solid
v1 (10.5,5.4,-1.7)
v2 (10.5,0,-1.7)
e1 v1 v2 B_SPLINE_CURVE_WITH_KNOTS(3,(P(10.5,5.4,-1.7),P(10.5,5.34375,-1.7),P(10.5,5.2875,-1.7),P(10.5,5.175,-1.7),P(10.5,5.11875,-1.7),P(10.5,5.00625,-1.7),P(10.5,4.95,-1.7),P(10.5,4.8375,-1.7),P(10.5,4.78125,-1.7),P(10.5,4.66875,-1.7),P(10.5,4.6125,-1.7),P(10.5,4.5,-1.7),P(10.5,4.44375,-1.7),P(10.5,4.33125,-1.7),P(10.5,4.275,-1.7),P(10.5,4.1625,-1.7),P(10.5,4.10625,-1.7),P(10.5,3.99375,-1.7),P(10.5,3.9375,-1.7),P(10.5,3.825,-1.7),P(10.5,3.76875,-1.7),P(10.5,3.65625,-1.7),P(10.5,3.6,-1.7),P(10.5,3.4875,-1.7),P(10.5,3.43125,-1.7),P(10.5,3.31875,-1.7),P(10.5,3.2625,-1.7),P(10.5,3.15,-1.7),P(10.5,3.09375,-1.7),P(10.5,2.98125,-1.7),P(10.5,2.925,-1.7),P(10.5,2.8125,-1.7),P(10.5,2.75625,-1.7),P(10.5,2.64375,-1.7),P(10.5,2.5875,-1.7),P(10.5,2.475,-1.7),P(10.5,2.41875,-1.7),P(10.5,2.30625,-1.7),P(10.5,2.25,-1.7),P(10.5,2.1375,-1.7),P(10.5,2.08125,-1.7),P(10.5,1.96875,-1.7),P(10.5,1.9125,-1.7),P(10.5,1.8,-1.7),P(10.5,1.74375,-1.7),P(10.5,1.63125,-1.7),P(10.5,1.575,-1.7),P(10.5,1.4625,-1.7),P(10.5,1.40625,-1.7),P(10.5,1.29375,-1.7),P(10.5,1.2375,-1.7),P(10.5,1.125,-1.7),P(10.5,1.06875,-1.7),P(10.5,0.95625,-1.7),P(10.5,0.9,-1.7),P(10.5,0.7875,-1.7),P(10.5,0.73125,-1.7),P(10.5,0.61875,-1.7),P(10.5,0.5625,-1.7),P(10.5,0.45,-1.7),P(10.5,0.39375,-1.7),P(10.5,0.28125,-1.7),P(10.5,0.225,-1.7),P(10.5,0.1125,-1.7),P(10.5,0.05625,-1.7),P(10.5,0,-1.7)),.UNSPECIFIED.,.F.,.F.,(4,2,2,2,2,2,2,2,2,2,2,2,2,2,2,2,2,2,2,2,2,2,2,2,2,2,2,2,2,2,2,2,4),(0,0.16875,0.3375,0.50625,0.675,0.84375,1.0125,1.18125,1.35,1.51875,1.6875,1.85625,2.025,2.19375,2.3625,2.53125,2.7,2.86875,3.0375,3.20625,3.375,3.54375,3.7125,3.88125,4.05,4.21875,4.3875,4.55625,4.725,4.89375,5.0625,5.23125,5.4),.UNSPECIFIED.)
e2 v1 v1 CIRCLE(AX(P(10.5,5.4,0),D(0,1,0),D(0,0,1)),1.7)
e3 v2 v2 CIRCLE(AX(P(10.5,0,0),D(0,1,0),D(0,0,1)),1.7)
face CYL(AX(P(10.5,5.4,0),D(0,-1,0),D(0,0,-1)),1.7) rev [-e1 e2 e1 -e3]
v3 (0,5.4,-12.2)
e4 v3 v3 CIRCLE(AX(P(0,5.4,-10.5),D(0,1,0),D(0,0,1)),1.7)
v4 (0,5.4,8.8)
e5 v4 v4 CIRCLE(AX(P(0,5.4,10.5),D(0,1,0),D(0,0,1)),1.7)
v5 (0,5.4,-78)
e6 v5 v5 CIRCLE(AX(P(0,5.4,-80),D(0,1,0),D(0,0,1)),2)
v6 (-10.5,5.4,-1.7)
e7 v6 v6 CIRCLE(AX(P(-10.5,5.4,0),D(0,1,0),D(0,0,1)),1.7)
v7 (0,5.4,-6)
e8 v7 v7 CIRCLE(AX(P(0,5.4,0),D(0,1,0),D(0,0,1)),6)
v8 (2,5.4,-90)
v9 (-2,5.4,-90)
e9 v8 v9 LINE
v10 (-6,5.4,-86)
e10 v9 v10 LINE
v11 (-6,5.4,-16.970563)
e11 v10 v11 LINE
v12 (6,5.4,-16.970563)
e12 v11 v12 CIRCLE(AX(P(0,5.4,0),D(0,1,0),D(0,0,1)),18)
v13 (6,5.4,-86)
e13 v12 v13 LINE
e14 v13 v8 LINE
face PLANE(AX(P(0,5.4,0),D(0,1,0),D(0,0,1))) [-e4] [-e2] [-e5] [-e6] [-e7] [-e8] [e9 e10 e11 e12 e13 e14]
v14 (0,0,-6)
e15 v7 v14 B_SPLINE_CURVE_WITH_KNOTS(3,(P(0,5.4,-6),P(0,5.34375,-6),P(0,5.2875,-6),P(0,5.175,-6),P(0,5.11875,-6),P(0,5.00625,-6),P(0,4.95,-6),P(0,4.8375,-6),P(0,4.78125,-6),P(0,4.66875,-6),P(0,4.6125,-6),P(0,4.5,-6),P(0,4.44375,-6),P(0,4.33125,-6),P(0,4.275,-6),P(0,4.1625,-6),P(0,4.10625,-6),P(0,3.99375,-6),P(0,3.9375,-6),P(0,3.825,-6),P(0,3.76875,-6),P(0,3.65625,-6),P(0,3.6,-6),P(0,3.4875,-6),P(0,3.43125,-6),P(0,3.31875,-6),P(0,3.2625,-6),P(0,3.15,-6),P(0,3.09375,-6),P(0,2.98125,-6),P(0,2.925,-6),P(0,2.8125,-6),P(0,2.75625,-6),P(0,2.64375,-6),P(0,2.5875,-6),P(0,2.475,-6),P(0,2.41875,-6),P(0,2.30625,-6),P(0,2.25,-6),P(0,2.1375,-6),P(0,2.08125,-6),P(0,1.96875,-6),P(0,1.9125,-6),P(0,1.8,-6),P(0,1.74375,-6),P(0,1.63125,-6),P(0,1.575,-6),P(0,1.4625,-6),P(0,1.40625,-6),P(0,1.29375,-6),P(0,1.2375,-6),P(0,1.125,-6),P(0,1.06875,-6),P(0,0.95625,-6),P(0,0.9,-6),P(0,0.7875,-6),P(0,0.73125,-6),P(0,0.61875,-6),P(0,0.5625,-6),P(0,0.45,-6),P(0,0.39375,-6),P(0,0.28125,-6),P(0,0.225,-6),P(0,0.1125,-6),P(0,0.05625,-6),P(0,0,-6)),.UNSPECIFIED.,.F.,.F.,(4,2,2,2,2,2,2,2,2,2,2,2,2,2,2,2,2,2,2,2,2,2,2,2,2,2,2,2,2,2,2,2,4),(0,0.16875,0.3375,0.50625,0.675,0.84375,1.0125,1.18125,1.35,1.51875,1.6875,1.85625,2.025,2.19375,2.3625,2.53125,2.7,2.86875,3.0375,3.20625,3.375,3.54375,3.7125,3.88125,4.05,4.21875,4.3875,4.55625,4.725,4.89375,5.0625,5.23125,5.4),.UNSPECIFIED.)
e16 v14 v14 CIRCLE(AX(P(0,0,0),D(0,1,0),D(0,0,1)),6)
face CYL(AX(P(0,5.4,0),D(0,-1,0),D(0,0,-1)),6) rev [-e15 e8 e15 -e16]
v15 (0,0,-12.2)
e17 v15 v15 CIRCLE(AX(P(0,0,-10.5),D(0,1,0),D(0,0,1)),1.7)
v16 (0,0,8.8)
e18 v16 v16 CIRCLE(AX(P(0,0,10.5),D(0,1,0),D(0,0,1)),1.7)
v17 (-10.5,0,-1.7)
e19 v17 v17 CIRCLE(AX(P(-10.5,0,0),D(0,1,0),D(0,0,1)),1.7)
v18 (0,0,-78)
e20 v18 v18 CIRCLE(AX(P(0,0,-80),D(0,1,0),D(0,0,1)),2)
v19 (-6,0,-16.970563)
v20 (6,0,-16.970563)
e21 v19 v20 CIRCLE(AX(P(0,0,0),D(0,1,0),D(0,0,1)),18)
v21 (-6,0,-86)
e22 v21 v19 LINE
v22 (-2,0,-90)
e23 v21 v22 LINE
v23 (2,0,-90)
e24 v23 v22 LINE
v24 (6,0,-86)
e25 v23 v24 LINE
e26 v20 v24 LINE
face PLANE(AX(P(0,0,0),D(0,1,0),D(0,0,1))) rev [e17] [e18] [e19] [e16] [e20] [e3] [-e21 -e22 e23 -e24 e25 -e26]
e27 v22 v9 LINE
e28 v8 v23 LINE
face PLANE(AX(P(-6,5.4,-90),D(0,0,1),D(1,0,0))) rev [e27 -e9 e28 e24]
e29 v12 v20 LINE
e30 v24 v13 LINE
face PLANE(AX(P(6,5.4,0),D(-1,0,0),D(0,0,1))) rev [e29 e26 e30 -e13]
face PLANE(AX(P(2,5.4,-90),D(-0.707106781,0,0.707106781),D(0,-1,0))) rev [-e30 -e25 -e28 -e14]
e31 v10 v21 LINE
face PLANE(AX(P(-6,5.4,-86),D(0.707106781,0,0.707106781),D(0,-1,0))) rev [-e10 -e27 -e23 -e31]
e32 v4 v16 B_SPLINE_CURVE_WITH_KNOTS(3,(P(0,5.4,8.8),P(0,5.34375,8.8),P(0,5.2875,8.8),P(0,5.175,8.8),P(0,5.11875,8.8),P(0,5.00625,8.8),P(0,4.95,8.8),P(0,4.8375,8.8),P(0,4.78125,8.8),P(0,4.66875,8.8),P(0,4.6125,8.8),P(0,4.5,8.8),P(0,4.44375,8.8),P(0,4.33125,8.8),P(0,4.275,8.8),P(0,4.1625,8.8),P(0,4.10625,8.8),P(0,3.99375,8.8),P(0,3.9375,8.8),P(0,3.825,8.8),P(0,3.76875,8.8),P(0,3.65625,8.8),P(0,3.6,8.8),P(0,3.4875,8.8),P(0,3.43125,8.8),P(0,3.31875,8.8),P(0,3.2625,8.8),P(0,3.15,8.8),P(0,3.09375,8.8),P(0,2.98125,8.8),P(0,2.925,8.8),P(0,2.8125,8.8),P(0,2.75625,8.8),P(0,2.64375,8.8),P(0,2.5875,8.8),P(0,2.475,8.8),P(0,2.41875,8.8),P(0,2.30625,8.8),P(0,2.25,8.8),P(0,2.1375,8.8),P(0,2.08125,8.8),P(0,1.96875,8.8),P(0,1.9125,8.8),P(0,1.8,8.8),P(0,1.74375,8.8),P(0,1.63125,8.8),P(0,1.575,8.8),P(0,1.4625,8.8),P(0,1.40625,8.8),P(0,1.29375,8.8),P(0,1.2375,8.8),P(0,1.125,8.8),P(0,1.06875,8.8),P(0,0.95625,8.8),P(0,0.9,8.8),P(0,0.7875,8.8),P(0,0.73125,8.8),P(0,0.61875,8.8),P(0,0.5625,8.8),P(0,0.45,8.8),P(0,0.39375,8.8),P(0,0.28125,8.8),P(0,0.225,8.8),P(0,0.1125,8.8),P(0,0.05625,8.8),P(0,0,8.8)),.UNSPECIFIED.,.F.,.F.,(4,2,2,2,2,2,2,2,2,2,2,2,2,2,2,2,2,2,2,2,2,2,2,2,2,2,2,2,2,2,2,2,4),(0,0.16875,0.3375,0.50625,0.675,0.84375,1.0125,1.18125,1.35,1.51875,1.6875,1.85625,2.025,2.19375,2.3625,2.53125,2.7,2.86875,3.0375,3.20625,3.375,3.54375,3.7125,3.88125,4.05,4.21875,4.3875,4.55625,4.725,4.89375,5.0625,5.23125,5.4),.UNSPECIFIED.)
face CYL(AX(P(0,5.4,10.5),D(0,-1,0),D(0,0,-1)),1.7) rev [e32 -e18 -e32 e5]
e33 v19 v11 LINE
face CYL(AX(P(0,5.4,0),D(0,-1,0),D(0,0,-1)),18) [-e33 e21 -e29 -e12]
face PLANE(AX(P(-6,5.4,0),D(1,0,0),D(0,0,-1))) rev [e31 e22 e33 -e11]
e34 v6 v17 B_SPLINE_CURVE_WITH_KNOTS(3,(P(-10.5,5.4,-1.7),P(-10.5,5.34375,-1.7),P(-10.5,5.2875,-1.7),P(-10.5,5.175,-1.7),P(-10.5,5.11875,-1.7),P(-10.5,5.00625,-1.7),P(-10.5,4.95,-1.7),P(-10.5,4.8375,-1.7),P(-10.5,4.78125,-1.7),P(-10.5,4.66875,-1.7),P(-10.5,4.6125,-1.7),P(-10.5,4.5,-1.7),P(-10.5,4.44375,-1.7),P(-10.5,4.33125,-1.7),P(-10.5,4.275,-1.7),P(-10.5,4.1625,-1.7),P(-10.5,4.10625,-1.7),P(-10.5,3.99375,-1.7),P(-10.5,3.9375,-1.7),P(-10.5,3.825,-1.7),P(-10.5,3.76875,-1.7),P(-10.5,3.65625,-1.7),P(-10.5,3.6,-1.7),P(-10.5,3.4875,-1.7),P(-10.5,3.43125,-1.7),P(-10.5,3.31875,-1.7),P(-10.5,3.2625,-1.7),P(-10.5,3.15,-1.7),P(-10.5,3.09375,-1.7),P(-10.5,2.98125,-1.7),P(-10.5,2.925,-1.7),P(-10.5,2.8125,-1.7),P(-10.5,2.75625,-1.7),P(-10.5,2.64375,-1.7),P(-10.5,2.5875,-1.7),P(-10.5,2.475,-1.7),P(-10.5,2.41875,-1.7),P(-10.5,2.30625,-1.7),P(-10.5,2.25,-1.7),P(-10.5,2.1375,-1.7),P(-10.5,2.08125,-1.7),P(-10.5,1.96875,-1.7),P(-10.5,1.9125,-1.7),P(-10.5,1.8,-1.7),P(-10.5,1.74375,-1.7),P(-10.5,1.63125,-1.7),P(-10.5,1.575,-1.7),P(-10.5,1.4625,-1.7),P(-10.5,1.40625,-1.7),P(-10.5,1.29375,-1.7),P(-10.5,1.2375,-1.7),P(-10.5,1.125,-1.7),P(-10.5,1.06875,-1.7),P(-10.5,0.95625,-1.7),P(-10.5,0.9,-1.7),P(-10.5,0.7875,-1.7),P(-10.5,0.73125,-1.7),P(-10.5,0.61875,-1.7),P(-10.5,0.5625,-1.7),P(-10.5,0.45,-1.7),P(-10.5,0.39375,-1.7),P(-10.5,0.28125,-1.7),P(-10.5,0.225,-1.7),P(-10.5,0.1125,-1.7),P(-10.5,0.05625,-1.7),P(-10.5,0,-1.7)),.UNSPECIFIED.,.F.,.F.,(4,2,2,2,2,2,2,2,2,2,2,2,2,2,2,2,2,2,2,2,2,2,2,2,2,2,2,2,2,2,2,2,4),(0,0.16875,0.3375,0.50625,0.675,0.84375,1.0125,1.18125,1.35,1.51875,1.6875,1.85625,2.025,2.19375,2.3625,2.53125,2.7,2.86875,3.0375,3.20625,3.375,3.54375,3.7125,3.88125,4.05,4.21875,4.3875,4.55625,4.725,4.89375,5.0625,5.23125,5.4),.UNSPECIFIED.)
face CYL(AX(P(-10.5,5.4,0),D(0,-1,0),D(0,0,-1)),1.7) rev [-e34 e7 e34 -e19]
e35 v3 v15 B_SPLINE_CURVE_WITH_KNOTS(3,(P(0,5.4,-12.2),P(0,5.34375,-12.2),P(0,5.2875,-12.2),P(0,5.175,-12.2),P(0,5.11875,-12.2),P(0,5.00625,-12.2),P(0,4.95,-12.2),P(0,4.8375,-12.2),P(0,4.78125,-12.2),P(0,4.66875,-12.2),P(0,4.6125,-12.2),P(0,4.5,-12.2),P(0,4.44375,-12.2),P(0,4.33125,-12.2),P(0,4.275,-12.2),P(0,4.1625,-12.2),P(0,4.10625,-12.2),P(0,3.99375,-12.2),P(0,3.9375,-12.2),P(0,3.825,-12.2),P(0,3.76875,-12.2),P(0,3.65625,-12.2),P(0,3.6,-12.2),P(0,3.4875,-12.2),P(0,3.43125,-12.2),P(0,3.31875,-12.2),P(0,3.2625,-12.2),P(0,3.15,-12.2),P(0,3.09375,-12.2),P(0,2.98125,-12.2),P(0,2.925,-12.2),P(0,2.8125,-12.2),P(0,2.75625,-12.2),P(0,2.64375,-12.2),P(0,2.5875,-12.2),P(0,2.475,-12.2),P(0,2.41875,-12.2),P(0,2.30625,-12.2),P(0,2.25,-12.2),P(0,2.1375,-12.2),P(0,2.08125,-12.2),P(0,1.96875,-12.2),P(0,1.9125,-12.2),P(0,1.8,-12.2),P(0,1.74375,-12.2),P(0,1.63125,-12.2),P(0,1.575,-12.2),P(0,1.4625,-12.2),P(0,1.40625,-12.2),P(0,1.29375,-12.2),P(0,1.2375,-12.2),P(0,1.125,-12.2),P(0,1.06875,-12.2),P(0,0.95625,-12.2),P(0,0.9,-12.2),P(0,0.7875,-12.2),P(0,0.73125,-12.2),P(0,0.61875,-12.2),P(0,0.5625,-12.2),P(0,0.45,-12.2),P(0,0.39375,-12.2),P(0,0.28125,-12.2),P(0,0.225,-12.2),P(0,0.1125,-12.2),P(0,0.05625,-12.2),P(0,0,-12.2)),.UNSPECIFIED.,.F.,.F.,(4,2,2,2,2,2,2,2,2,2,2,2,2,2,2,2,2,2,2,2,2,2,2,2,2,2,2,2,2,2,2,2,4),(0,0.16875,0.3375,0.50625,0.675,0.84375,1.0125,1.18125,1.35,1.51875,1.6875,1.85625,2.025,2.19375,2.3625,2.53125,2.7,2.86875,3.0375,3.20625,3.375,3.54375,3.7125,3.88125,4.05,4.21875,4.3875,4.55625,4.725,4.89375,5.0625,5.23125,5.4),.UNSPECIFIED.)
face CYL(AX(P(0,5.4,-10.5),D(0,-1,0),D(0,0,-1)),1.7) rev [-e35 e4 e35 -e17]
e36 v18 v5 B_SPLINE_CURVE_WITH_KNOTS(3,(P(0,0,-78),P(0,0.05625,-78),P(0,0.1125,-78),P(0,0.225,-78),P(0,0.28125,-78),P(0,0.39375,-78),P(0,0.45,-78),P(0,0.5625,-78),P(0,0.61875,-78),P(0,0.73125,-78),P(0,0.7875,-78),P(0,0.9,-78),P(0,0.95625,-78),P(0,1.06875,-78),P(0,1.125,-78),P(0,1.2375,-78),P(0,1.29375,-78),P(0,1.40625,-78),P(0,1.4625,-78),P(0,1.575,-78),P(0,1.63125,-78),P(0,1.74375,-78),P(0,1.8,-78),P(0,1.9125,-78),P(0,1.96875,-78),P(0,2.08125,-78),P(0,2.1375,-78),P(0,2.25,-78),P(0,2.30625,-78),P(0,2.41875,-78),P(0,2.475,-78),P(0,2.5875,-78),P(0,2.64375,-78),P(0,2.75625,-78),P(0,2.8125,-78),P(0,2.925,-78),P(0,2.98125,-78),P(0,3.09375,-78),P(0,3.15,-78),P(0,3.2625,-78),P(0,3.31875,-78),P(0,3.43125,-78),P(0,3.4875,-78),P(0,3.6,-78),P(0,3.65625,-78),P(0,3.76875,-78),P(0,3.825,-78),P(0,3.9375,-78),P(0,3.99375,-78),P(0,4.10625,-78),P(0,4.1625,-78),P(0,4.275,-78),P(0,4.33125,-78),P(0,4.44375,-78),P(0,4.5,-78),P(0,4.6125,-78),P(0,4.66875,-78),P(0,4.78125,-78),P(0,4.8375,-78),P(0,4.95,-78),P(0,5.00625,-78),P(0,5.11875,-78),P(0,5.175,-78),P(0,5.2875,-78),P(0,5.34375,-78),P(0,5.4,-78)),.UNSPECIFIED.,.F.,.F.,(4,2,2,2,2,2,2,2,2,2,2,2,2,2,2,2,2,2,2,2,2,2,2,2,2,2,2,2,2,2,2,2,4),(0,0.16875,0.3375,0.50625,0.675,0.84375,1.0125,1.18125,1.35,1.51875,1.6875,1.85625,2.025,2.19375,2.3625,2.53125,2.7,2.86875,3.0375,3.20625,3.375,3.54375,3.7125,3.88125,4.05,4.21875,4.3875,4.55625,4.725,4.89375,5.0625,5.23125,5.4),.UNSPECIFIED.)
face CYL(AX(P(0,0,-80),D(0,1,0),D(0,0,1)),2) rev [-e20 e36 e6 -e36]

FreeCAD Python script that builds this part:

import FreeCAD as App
import Part
import Sketcher
Q = App.Units.Quantity


def edges_at(feature, points):
    """Names of the edges that pass closest to the given points."""
    edges = feature.Shape.Edges
    near = lambda p: min(range(len(edges)), key=lambda i: edges[i].distToShape(Part.Vertex(*p))[0])
    return sorted({f"Edge{near(p) + 1}" for p in points})


def add_polygon(sketch, points):
    """Adds a closed chain of lines whose ends are joined by coincident constraints."""
    first, n = sketch.GeometryCount, len(points)
    for a, b in zip(points, points[1:] + points[:1]):
        sketch.addGeometry(Part.LineSegment(App.Vector(*a, 0), App.Vector(*b, 0)), False)
    for i in range(n):
        sketch.addConstraint(Sketcher.Constraint("Coincident", first + i, 2, first + (i + 1) % n, 1))

doc = App.newDocument("Part")
body = doc.addObject("PartDesign::Body", "Body")

# Sketch on XZ plane
sketch1 = doc.addObject("Sketcher::SketchObject", "Sketch")
body.addObject(sketch1)
sketch1.AttachmentSupport = (doc.XZ_Plane, [""])
sketch1.MapMode = "FlatFace"
sketch1.addGeometry(Part.Circle(App.Vector(0, 0, 0), App.Vector(0, 0, 1), 18), False)
sketch1.addConstraint(Sketcher.Constraint("Coincident", 0, 3, -1, 1))
sketch1.addConstraint(Sketcher.Constraint("Diameter", 0, Q("36 mm")))
pad1 = doc.addObject("PartDesign::Pad", "Pad")
body.addObject(pad1)
pad1.Profile = sketch1
pad1.Length = 5.4
pad1.Reversed = True

# Sketch on XZ plane
sketch2 = doc.addObject("Sketcher::SketchObject", "Sketch001")
body.addObject(sketch2)
sketch2.AttachmentSupport = (doc.XZ_Plane, [""])
sketch2.MapMode = "FlatFace"
add_polygon(sketch2, [(-6, -90), (-6, 0), (6, 0), (6, -90)])  # lines 0-3
sketch2.addConstraint(Sketcher.Constraint("Vertical", 0))
sketch2.addConstraint(Sketcher.Constraint("Horizontal", 1))
sketch2.addConstraint(Sketcher.Constraint("Vertical", 2))
sketch2.addConstraint(Sketcher.Constraint("Horizontal", 3))
sketch2.addConstraint(Sketcher.Constraint("Symmetric", 0, 2, 1, 2, -1, 1))
sketch2.addConstraint(Sketcher.Constraint("DistanceX", 1, 1, 1, 2, Q("12 mm")))
sketch2.addConstraint(Sketcher.Constraint("DistanceY", 0, 1, 0, 2, Q("90 mm")))
pad2 = doc.addObject("PartDesign::Pad", "Pad001")
body.addObject(pad2)
pad2.Profile = sketch2
pad2.Length = 5.4
pad2.Reversed = True

# Sketch on XZ plane
sketch3 = doc.addObject("Sketcher::SketchObject", "Sketch002")
body.addObject(sketch3)
sketch3.AttachmentSupport = (doc.XZ_Plane, [""])
sketch3.MapMode = "FlatFace"
sketch3.addGeometry(Part.Circle(App.Vector(10.5, 0, 0), App.Vector(0, 0, 1), 1.7), False)
sketch3.addGeometry(Part.Circle(App.Vector(0, 0, 0), App.Vector(0, 0, 1), 6), False)
sketch3.addGeometry(Part.Circle(App.Vector(0, 10.5, 0), App.Vector(0, 0, 1), 1.7), False)
sketch3.addGeometry(Part.Circle(App.Vector(-10.5, 0, 0), App.Vector(0, 0, 1), 1.7), False)
sketch3.addGeometry(Part.Circle(App.Vector(0, -10.5, 0), App.Vector(0, 0, 1), 1.7), False)
sketch3.addConstraint(Sketcher.Constraint("Coincident", 1, 3, -1, 1))
sketch3.addConstraint(Sketcher.Constraint("Equal", 0, 2))
sketch3.addConstraint(Sketcher.Constraint("Equal", 2, 3))
sketch3.addConstraint(Sketcher.Constraint("Equal", 3, 4))
sketch3.addConstraint(Sketcher.Constraint("Symmetric", 0, 3, 3, 3, -1, 1))
sketch3.addConstraint(Sketcher.Constraint("Symmetric", 2, 3, 4, 3, -1, 1))
sketch3.addConstraint(Sketcher.Constraint("PointOnObject", 0, 3, -1))
sketch3.addConstraint(Sketcher.Constraint("PointOnObject", 2, 3, -2))
sketch3.addConstraint(Sketcher.Constraint("Diameter", 1, Q("12 mm")))
sketch3.addConstraint(Sketcher.Constraint("Diameter", 0, Q("3.4 mm")))
sketch3.addConstraint(Sketcher.Constraint("DistanceX", 3, 3, 0, 3, Q("21 mm")))
sketch3.addConstraint(Sketcher.Constraint("DistanceY", 4, 3, 2, 3, Q("21 mm")))
pocket1 = doc.addObject("PartDesign::Pocket", "Pocket")
body.addObject(pocket1)
pocket1.Profile = sketch3
pocket1.Type = "ThroughAll"
doc.recompute()

chamfer = doc.addObject("PartDesign::Chamfer", "Chamfer")
body.addObject(chamfer)
chamfer.Base = (pocket1, edges_at(pocket1, [(-6, 2.7, -90), (6, 2.7, -90)]))
chamfer.Size = 4

# Sketch on XZ plane
sketch4 = doc.addObject("Sketcher::SketchObject", "Sketch003")
body.addObject(sketch4)
sketch4.AttachmentSupport = (doc.XZ_Plane, [""])
sketch4.MapMode = "FlatFace"
sketch4.AttachmentOffset = App.Placement(App.Vector(0, 0, -5.4), App.Rotation())
sketch4.addGeometry(Part.Circle(App.Vector(0, -80, 0), App.Vector(0, 0, 1), 2), False)
sketch4.addConstraint(Sketcher.Constraint("PointOnObject", 0, 3, -2))
sketch4.addConstraint(Sketcher.Constraint("Diameter", 0, Q("4 mm")))
sketch4.addConstraint(Sketcher.Constraint("DistanceY", 0, 3, -1, 1, Q("80 mm")))
pocket2 = doc.addObject("PartDesign::Pocket", "Pocket001")
body.addObject(pocket2)
pocket2.Profile = sketch4
pocket2.Type = "ThroughAll"
pocket2.Reversed = True

doc.recompute()
